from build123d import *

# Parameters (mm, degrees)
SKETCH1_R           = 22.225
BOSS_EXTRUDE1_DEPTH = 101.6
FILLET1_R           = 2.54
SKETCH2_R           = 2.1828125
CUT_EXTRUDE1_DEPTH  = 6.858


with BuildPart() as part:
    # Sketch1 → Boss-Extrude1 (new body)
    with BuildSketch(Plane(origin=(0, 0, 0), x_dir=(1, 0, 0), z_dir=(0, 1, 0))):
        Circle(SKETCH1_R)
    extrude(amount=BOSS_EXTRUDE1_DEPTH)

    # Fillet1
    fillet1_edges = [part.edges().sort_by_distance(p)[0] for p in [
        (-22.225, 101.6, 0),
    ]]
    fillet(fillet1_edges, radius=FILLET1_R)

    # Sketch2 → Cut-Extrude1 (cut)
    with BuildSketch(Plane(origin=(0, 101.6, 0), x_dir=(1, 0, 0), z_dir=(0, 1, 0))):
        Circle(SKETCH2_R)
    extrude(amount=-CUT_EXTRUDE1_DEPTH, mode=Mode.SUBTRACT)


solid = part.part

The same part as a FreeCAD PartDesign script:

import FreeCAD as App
import Part
import Sketcher

V = App.Vector
Q = App.Units.Quantity


def edges_at(feature, points):
    """Names of the edges that pass closest to the given points."""
    edges = feature.Shape.Edges
    near = lambda p: min(range(len(edges)), key=lambda i: edges[i].distToShape(Part.Vertex(*p))[0])
    return sorted({f"Edge{near(p) + 1}" for p in points})

doc = App.newDocument("Part")
body = doc.addObject("PartDesign::Body", "Body")

# Sketch on XZ plane
sketch1 = doc.addObject("Sketcher::SketchObject", "Sketch")
body.addObject(sketch1)
sketch1.AttachmentSupport = (doc.XZ_Plane, [""])
sketch1.MapMode = "FlatFace"
sketch1.addGeometry(Part.Circle(V(0, 0, 0), V(0, 0, 1), 22), False)
sketch1.addConstraint([
    Sketcher.Constraint("Coincident", 0, 3, -1, 1),
    Sketcher.Constraint("Diameter", 0, Q("1.75 in")),
])
pad1 = doc.addObject("PartDesign::Pad", "Pad")
body.addObject(pad1)
pad1.Profile = sketch1
pad1.Length = Q("4 in")
pad1.Reversed = True
doc.recompute()

fillet = doc.addObject("PartDesign::Fillet", "Fillet")
body.addObject(fillet)
fillet.Base = (pad1, edges_at(pad1, [(-22.225, 101.6, 0)]))
fillet.Radius = Q("0.1 in")

# Sketch on XZ plane
sketch2 = doc.addObject("Sketcher::SketchObject", "Sketch001")
body.addObject(sketch2)
sketch2.AttachmentSupport = (doc.XZ_Plane, [""])
sketch2.MapMode = "FlatFace"
sketch2.AttachmentOffset = App.Placement(V(0, 0, -4 * 25.4), App.Rotation())
sketch2.addGeometry(Part.Circle(V(0, 0, 0), V(0, 0, 1), 2.2), False)
sketch2.addConstraint([
    Sketcher.Constraint("Coincident", 0, 3, -1, 1),
    Sketcher.Constraint("Diameter", 0, Q("0.171875 in")),
])
pocket1 = doc.addObject("PartDesign::Pocket", "Pocket")
body.addObject(pocket1)
pocket1.Profile = sketch2
pocket1.Length = Q("0.27 in")
pocket1.Reversed = True

doc.recompute()
